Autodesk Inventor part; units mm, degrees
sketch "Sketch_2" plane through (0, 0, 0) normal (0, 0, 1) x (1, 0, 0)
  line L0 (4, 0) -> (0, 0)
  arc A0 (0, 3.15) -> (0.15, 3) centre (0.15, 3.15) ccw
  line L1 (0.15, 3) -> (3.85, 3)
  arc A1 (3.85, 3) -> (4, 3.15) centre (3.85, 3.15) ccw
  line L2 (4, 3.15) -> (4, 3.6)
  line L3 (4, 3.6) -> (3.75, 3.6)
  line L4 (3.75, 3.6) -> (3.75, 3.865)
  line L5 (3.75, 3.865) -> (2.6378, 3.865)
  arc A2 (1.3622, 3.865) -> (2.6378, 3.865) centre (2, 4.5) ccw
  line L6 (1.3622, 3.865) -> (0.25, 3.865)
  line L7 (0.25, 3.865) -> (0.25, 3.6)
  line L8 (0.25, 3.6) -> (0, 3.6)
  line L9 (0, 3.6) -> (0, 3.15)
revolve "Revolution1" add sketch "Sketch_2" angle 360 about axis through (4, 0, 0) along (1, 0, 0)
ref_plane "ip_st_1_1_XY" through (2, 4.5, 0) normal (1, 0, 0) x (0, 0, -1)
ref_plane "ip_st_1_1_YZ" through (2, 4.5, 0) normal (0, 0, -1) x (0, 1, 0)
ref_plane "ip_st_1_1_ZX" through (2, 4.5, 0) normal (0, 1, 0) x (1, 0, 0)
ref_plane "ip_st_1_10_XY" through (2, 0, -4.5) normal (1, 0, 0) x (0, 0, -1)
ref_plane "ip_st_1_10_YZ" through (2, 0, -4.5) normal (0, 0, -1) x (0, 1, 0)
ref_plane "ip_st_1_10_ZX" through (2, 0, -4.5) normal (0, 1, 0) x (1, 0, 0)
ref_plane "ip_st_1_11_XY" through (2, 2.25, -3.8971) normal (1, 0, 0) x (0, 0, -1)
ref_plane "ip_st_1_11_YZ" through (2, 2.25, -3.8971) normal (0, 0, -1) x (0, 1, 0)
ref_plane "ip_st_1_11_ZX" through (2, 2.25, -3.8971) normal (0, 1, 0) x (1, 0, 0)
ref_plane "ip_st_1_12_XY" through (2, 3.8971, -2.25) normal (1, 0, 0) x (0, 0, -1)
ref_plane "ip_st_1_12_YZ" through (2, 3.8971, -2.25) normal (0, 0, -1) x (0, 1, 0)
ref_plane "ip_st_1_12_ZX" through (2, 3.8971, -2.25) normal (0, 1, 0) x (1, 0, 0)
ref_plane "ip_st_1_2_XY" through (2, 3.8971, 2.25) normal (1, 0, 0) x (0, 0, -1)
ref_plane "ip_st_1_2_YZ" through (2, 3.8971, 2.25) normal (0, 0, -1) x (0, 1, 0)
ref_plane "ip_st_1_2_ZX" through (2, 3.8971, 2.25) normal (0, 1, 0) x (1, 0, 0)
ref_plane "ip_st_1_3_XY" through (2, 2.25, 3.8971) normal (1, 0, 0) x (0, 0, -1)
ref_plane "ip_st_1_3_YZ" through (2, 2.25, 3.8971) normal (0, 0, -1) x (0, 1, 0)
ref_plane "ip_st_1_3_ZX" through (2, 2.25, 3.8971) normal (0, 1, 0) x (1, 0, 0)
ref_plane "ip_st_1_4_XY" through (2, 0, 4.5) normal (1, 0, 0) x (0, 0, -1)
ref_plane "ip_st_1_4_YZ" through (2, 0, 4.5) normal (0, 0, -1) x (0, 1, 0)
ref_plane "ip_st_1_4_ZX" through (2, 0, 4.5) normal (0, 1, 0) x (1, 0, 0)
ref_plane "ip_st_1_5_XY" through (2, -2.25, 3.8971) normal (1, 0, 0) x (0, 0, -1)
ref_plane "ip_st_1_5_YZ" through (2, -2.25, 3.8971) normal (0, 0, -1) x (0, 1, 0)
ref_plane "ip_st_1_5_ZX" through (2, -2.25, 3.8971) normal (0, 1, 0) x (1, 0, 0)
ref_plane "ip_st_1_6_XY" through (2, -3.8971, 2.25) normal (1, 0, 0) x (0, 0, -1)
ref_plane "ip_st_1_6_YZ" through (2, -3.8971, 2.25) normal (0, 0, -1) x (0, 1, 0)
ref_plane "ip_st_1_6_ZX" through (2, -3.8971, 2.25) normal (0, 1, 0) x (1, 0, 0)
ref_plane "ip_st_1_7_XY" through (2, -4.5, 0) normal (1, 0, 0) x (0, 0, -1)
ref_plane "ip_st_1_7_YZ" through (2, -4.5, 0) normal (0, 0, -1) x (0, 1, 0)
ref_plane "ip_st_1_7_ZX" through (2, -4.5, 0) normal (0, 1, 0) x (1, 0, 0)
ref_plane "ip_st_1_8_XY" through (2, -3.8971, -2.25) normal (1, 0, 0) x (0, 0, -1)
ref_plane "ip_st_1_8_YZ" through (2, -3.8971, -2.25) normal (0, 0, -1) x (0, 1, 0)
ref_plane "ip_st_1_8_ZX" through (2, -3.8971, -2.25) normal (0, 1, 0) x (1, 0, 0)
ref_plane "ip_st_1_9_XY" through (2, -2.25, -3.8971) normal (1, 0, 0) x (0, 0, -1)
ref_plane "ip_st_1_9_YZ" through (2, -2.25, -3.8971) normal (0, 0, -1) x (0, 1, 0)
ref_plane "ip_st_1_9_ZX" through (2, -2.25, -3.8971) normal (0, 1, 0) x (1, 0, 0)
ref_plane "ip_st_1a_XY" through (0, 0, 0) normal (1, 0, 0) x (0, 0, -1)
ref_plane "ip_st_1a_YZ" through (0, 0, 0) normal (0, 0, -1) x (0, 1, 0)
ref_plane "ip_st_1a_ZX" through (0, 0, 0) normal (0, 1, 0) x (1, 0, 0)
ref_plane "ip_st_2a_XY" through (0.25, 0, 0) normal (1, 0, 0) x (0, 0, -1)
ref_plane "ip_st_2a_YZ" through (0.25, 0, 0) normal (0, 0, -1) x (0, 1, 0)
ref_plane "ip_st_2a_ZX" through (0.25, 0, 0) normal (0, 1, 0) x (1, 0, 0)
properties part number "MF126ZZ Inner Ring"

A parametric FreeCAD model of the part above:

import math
import FreeCAD as App
import Part
import Sketcher

V = App.Vector
Q = App.Units.Quantity

doc = App.newDocument("Part")
body = doc.addObject("PartDesign::Body", "Body")

# Sketch on XY plane
sketch1 = body.newObject("Sketcher::SketchObject", "Sketch")
sketch1.AttachmentSupport = (doc.getObject("XY_Plane"), [""])
sketch1.MapMode = "FlatFace"
sketch1.addGeometry([
    Part.LineSegment(V(0, 3.6, 0), V(0, 3.15, 0)),  # 0
    Part.ArcOfCircle(Part.Circle(V(0.15, 3.15, 0), V(0, 0, 1), 0.15), math.radians(180), math.radians(270)),  # 1
    Part.LineSegment(V(0.15, 3, 0), V(3.85, 3, 0)),  # 2
    Part.ArcOfCircle(Part.Circle(V(3.85, 3.15, 0), V(0, 0, 1), 0.15), math.radians(-90), math.radians(0)),  # 3
    Part.LineSegment(V(4, 3.15, 0), V(4, 3.6, 0)),  # 4
    Part.LineSegment(V(4, 3.6, 0), V(3.75, 3.6, 0)),  # 5
    Part.LineSegment(V(3.75, 3.6, 0), V(3.75, 3.87, 0)),  # 6
    Part.LineSegment(V(3.75, 3.87, 0), V(2.64, 3.87, 0)),  # 7
    Part.ArcOfCircle(Part.Circle(V(2, 4.5, 0), V(0, 0, 1), 0.9), math.radians(-135), math.radians(-45)),  # 8
    Part.LineSegment(V(1.36, 3.87, 0), V(0.25, 3.87, 0)),  # 9
    Part.LineSegment(V(0.25, 3.87, 0), V(0.25, 3.6, 0)),  # 10
    Part.LineSegment(V(0.25, 3.6, 0), V(0, 3.6, 0)),  # 11
], False)
sketch1.addConstraint([
    Sketcher.Constraint("Tangent", 0, 2, 1, 1),
    Sketcher.Constraint("Tangent", 1, 2, 2, 1),
    Sketcher.Constraint("Tangent", 2, 2, 3, 1),
    Sketcher.Constraint("Tangent", 3, 2, 4, 1),
    Sketcher.Constraint("Coincident", 4, 2, 5, 1),
    Sketcher.Constraint("Coincident", 5, 2, 6, 1),
    Sketcher.Constraint("Coincident", 6, 2, 7, 1),
    Sketcher.Constraint("Coincident", 7, 2, 8, 2),
    Sketcher.Constraint("Coincident", 8, 1, 9, 1),
    Sketcher.Constraint("Coincident", 9, 2, 10, 1),
    Sketcher.Constraint("Coincident", 10, 2, 11, 1),
    Sketcher.Constraint("Coincident", 11, 2, 0, 1),
    Sketcher.Constraint("Vertical", 0),
    Sketcher.Constraint("Horizontal", 2),
    Sketcher.Constraint("Vertical", 4),
    Sketcher.Constraint("Horizontal", 5),
    Sketcher.Constraint("Vertical", 6),
    Sketcher.Constraint("Horizontal", 7),
    Sketcher.Constraint("Horizontal", 9),
    Sketcher.Constraint("Vertical", 10),
    Sketcher.Constraint("Horizontal", 11),
    Sketcher.Constraint("Equal", 1, 3),
    Sketcher.Constraint("PointOnObject", 0, 2, -2),
    Sketcher.Constraint("Horizontal", 7, 2, 8, 1),
    Sketcher.Constraint("Horizontal", 5, 2, 10, 2),
    Sketcher.Constraint("Equal", 7, 9),
    Sketcher.Constraint("Equal", 5, 11),
    Sketcher.Constraint("Radius", 8, Q("0.9 mm")),
    Sketcher.Constraint("Radius", 1, Q("0.15 mm")),
    Sketcher.Constraint("DistanceX", 2, 1, 2, 2, Q("3.7 mm")),
    Sketcher.Constraint("DistanceY", -1, 1, 1, 2, Q("3 mm")),
    Sketcher.Constraint("DistanceX", 5, 2, 5, 1, Q("0.25 mm")),
    Sketcher.Constraint("DistanceY", 0, 2, 0, 1, Q("0.45 mm")),
    Sketcher.Constraint("DistanceY", -1, 1, 8, 3, Q("4.5 mm")),
    Sketcher.Constraint("DistanceY", 6, 1, 6, 2, Q("0.265 mm")),
])
revolution = body.newObject("PartDesign::Revolution", "Revolution")
revolution.Profile = sketch1
revolution.ReferenceAxis = (sketch1, ["H_Axis"])
revolution.Angle = 360

doc.recompute()
